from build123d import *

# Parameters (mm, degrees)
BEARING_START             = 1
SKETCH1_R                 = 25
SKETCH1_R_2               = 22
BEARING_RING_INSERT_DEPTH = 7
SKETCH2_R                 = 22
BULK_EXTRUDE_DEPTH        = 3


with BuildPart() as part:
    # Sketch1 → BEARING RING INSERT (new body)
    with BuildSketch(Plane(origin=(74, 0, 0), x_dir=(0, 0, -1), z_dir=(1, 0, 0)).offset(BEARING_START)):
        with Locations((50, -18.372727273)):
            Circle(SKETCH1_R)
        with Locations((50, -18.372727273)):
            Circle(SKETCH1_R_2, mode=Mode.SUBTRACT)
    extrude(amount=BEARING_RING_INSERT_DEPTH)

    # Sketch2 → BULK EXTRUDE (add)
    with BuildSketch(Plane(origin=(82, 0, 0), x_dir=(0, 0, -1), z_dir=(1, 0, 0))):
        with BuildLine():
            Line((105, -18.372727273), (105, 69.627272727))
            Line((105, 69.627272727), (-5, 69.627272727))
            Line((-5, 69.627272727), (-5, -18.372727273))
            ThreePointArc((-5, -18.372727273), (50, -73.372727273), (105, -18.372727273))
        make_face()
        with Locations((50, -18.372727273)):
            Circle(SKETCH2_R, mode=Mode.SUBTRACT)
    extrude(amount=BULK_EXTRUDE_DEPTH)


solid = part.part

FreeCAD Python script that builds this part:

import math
import FreeCAD as App
import Part
import Sketcher
from FreeCAD import Vector
Q = App.Units.Quantity

doc = App.newDocument("Part")
params = doc.addObject("Spreadsheet::Sheet", "Params")
for row, (alias, value) in enumerate([
    ("sketch1_diameter", "50 mm"),
    ("sketch1_diameter2", "44 mm"),
    ("pad1_length", "7 mm"),
    ("sketch2_diameter", "44 mm"),
    ("sketch2_radius", "55 mm"),
    ("sketch2_width", "88 mm"),
    ("pad2_length", "3 mm"),
], start=1):
    params.set(f"A{row}", alias)
    params.set(f"B{row}", "=" + value)
    params.setAlias(f"B{row}", alias)

body = doc.addObject("PartDesign::Body", "Body")

sketch1 = doc.addObject("Sketcher::SketchObject", "Sketch")
body.addObject(sketch1)
sketch1.AttachmentSupport = (doc.YZ_Plane, [""])
sketch1.MapMode = "FlatFace"
sketch1.AttachmentOffset = App.Placement(Vector(0, 0, 75), App.Rotation())
sketch1.addGeometry(Part.Circle(Vector(-18, -50, 0), Vector(0, 0, 1), 25), False)
sketch1.addGeometry(Part.Circle(Vector(-18, -50, 0), Vector(0, 0, 1), 22), False)
sketch1.addConstraint(Sketcher.Constraint("Coincident", 1, 3, 0, 3))
sketch1.addConstraint(Sketcher.Constraint("Diameter", 0, Q("50 mm")))
sketch1.addConstraint(Sketcher.Constraint("Diameter", 1, Q("44 mm")))
sketch1.addConstraint(Sketcher.Constraint("DistanceY", 0, 3, -1, 1, Q("50 mm")))
sketch1.addConstraint(Sketcher.Constraint("DistanceX", 0, 3, -1, 1, Q("18.372727 mm")))
sketch1.setExpression("Constraints[1]", "Params.sketch1_diameter")
sketch1.setExpression("Constraints[2]", "Params.sketch1_diameter2")
pad1 = doc.addObject("PartDesign::Pad", "Pad")
body.addObject(pad1)
pad1.Profile = sketch1
pad1.setExpression("Length", "Params.pad1_length")

sketch2 = doc.addObject("Sketcher::SketchObject", "Sketch001")
body.addObject(sketch2)
sketch2.AttachmentSupport = (doc.YZ_Plane, [""])
sketch2.MapMode = "FlatFace"
sketch2.AttachmentOffset = App.Placement(Vector(0, 0, 82), App.Rotation())
sketch2.addGeometry(Part.LineSegment(Vector(-18, -105, 0), Vector(70, -105, 0)), False)
sketch2.addGeometry(Part.LineSegment(Vector(70, -105, 0), Vector(70, 5, 0)), False)
sketch2.addGeometry(Part.LineSegment(Vector(70, 5, 0), Vector(-18, 5, 0)), False)
sketch2.addGeometry(Part.ArcOfCircle(Part.Circle(Vector(-18, -50, 0), Vector(0, 0, 1), 55), math.radians(90), math.radians(270)), False)
sketch2.addGeometry(Part.Circle(Vector(-18, -50, 0), Vector(0, 0, 1), 22), False)
sketch2.addConstraint(Sketcher.Constraint("Coincident", 0, 2, 1, 1))
sketch2.addConstraint(Sketcher.Constraint("Coincident", 1, 2, 2, 1))
sketch2.addConstraint(Sketcher.Constraint("Tangent", 2, 2, 3, 1))
sketch2.addConstraint(Sketcher.Constraint("Tangent", 3, 2, 0, 1))
sketch2.addConstraint(Sketcher.Constraint("Horizontal", 0))
sketch2.addConstraint(Sketcher.Constraint("Vertical", 1))
sketch2.addConstraint(Sketcher.Constraint("Horizontal", 2))
sketch2.addConstraint(Sketcher.Constraint("Coincident", 4, 3, 3, 3))
sketch2.addConstraint(Sketcher.Constraint("Diameter", 4, Q("44 mm")))
sketch2.addConstraint(Sketcher.Constraint("Radius", 3, Q("55 mm")))
sketch2.addConstraint(Sketcher.Constraint("DistanceX", 0, 1, 0, 2, Q("88 mm")))
sketch2.addConstraint(Sketcher.Constraint("DistanceY", 3, 3, -1, 1, Q("50 mm")))
sketch2.addConstraint(Sketcher.Constraint("DistanceX", 3, 3, -1, 1, Q("18.372727 mm")))
sketch2.setExpression("Constraints[8]", "Params.sketch2_diameter")
sketch2.setExpression("Constraints[9]", "Params.sketch2_radius")
sketch2.setExpression("Constraints[10]", "Params.sketch2_width")
pad2 = doc.addObject("PartDesign::Pad", "Pad001")
body.addObject(pad2)
pad2.Profile = sketch2
pad2.setExpression("Length", "Params.pad2_length")

doc.recompute()
